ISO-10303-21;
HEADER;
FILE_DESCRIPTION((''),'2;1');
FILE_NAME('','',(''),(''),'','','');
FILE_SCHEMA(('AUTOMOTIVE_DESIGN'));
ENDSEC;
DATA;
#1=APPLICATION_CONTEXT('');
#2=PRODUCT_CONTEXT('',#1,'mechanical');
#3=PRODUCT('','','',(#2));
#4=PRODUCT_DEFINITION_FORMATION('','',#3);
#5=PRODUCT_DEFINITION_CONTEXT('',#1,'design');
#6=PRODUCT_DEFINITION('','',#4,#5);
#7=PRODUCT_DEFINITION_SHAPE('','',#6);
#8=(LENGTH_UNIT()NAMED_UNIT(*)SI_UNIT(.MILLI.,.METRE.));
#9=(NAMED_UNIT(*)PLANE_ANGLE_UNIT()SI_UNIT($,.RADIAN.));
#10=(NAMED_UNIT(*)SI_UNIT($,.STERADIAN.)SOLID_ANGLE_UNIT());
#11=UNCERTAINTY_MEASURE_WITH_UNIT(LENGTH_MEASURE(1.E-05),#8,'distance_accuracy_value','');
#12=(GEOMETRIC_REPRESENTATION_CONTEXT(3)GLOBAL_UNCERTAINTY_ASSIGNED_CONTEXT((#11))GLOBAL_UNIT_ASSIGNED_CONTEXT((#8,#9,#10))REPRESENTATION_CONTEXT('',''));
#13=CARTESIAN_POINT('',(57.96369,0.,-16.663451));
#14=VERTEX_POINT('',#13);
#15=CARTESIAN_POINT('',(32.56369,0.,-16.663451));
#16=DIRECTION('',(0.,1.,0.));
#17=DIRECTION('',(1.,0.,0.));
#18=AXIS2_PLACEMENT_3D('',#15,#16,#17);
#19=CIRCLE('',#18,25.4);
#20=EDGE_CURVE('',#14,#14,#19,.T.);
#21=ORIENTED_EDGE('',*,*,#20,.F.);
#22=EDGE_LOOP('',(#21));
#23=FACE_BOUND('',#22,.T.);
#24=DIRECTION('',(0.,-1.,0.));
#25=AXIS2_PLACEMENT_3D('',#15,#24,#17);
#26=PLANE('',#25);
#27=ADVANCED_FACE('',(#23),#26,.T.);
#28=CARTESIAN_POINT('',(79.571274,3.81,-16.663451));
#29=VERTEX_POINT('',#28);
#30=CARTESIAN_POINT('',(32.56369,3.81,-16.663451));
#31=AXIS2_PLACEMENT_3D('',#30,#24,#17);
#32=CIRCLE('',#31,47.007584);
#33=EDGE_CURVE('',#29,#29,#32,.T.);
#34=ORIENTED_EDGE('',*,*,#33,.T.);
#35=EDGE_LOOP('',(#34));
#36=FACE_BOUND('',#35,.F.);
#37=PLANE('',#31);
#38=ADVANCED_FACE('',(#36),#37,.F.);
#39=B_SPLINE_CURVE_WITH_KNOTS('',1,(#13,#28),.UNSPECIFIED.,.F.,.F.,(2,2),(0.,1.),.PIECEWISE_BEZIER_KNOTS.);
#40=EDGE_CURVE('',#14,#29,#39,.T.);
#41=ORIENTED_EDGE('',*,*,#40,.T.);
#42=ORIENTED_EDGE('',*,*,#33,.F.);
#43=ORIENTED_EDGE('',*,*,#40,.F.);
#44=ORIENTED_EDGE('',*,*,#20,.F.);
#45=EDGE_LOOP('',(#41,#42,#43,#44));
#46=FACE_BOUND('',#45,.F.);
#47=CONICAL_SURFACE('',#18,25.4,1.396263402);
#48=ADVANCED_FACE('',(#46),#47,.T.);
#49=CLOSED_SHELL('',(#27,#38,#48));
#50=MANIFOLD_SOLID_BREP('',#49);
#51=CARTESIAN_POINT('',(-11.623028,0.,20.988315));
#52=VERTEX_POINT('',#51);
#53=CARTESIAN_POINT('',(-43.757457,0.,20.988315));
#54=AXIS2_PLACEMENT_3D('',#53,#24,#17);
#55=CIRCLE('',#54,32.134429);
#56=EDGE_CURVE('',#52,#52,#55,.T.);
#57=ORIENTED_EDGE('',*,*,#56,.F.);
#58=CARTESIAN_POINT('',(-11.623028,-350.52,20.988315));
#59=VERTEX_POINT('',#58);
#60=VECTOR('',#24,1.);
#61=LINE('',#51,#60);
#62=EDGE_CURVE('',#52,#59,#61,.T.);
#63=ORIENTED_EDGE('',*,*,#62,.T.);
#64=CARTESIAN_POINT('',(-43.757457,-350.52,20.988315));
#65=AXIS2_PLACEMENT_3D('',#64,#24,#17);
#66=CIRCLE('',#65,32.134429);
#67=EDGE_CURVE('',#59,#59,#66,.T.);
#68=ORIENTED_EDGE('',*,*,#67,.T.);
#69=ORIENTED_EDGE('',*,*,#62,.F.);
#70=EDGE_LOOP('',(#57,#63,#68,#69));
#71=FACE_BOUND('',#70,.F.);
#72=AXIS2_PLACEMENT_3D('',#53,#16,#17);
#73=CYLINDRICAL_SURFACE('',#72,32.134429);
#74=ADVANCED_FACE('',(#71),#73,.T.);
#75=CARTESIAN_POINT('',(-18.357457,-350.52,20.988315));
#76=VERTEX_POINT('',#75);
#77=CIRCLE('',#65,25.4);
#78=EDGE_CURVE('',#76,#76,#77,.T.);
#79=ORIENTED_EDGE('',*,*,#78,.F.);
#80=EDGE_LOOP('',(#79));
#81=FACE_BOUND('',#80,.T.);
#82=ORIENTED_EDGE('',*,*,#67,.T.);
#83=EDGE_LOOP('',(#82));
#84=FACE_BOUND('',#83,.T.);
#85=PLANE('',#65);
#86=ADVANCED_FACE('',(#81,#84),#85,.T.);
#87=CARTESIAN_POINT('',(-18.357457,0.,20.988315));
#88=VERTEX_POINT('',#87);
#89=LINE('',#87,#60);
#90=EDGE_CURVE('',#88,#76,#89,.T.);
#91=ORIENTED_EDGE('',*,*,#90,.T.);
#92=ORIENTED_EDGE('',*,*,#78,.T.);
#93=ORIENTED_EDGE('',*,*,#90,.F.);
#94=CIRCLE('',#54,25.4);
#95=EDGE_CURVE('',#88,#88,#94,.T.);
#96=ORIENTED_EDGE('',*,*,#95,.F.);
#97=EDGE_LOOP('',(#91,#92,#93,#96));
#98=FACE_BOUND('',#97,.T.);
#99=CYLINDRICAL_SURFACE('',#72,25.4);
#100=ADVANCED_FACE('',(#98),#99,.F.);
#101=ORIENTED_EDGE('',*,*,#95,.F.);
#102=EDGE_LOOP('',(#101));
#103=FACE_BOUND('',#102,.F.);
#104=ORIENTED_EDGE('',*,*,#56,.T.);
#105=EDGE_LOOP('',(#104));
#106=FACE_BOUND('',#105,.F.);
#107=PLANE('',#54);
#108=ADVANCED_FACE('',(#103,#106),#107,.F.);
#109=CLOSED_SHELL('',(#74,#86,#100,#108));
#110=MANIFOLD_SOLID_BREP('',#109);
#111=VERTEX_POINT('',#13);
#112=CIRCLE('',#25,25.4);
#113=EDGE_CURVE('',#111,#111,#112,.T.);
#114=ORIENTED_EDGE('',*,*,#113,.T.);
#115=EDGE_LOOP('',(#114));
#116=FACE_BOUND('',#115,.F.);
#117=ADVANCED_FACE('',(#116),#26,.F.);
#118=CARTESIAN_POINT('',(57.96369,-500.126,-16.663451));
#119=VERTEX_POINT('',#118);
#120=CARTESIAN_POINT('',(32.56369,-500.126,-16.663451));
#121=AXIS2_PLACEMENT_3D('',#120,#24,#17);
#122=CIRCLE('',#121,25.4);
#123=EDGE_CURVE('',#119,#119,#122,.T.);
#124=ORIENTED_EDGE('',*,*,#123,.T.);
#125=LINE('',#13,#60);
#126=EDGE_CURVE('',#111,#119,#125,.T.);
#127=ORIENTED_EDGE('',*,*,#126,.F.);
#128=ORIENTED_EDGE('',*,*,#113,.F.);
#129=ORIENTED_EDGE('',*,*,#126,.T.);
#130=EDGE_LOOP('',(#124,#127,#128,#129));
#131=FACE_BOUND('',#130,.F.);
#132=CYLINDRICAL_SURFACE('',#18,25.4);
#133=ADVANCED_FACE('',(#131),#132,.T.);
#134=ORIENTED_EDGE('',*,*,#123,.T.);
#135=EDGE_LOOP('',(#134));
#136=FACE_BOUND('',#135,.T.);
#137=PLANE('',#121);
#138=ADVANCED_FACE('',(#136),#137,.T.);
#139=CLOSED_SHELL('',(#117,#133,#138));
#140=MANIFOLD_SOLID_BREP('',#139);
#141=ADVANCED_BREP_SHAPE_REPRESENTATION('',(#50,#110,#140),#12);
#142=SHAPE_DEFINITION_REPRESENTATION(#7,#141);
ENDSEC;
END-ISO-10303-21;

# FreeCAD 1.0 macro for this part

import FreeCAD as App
import Part
import Sketcher

V = App.Vector
Q = App.Units.Quantity

doc = App.newDocument("Part")
body = doc.addObject("PartDesign::Body", "Body")

# Sketch on XZ plane
sketch1 = doc.addObject("Sketcher::SketchObject", "Sketch")
body.addObject(sketch1)
sketch1.AttachmentSupport = (doc.XZ_Plane, [""])
sketch1.MapMode = "FlatFace"
sketch1.addGeometry([
    Part.Circle(V(-44, 21, 0), V(0, 0, 1), 32),
    Part.Circle(V(-44, 21, 0), V(0, 0, 1), 25),
], False)
sketch1.addConstraint([
    Sketcher.Constraint("Coincident", 1, 3, 0, 3),
    Sketcher.Constraint("Diameter", 1, Q("2 in")),
    Sketcher.Constraint("Diameter", 0, 64.268858),
    Sketcher.Constraint("DistanceX", 0, 3, -1, 1, 43.757457),
    Sketcher.Constraint("DistanceY", -1, 1, 0, 3, 20.988315),
])
pad1 = doc.addObject("PartDesign::Pad", "Pad")
body.addObject(pad1)
pad1.Profile = sketch1
pad1.Length = Q("13.8 in")
body2 = doc.addObject("PartDesign::Body", "Body001")

# Sketch on XZ plane
sketch2 = doc.addObject("Sketcher::SketchObject", "Sketch001")
body2.addObject(sketch2)
sketch2.AttachmentSupport = (doc.getObject("XZ_Plane001"), [""])
sketch2.MapMode = "FlatFace"
sketch2.addGeometry(Part.Circle(V(33, -17, 0), V(0, 0, 1), 25), False)
sketch2.addConstraint([
    Sketcher.Constraint("Diameter", 0, Q("2 in")),
    Sketcher.Constraint("DistanceX", -1, 1, 0, 3, 32.56369),
    Sketcher.Constraint("DistanceY", 0, 3, -1, 1, 16.663451),
])
pad2 = doc.addObject("PartDesign::Pad", "Pad001")
body2.addObject(pad2)
pad2.Profile = sketch2
pad2.Length = Q("19.69 in")
body3 = doc.addObject("PartDesign::Body", "Body002")

# Sketch on XZ plane
sketch3 = doc.addObject("Sketcher::SketchObject", "Sketch002")
body3.addObject(sketch3)
sketch3.AttachmentSupport = (doc.getObject("XZ_Plane002"), [""])
sketch3.MapMode = "FlatFace"
sketch3.addGeometry(Part.Circle(V(33, -17, 0), V(0, 0, 1), 25), False)
sketch3.addConstraint([
    Sketcher.Constraint("Diameter", 0, Q("2 in")),
    Sketcher.Constraint("DistanceX", -1, 1, 0, 3, 32.56369),
    Sketcher.Constraint("DistanceY", 0, 3, -1, 1, 16.663451),
])
pad3 = doc.addObject("PartDesign::Pad", "Pad002")
body3.addObject(pad3)
pad3.Profile = sketch3
pad3.Length = Q("0.15 in")
pad3.Reversed = True
pad3.TaperAngle = 80

doc.recompute()
